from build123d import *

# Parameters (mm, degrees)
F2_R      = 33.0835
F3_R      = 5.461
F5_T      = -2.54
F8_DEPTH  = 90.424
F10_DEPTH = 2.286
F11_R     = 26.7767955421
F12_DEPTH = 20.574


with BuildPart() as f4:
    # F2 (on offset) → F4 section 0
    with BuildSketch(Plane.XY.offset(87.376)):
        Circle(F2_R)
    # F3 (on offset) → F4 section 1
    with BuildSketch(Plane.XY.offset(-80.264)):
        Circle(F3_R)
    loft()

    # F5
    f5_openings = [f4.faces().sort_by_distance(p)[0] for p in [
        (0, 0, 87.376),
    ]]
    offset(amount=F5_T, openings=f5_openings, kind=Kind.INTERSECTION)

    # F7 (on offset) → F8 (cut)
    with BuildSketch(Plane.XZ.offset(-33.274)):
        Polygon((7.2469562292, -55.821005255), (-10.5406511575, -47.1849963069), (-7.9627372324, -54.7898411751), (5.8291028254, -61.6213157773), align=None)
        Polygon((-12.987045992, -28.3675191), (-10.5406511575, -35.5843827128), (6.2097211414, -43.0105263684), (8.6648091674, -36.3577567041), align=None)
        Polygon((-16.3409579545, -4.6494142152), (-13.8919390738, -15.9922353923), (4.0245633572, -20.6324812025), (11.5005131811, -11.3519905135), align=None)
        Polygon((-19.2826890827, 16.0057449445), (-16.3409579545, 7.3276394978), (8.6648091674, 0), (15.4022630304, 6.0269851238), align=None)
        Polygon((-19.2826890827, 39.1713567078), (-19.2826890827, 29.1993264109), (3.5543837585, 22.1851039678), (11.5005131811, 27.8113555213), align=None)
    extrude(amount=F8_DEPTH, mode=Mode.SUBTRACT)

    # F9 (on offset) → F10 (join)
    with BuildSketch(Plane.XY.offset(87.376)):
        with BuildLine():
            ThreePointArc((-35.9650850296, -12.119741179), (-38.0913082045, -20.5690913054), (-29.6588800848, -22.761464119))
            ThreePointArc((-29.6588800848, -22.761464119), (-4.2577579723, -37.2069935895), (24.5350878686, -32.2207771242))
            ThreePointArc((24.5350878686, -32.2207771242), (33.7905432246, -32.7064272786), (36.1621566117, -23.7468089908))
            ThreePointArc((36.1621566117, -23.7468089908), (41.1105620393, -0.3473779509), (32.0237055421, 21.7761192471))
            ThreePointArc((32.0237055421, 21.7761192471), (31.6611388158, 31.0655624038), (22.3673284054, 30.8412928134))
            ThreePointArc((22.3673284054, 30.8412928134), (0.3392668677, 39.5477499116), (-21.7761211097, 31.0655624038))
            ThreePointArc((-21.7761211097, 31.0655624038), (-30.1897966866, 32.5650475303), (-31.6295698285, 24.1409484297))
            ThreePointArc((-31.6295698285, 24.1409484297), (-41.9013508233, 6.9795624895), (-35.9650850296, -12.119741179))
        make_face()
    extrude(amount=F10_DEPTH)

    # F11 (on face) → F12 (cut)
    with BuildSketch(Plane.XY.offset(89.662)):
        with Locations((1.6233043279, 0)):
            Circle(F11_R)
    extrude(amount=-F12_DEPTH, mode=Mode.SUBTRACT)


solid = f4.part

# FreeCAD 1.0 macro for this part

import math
import FreeCAD as App
import Part
import Sketcher
from FreeCAD import Vector
Q = App.Units.Quantity


def faces_at(feature, points):
    """Names of the faces that lie closest to the given points."""
    faces = feature.Shape.Faces
    near = lambda p: min(range(len(faces)), key=lambda i: faces[i].distToShape(Part.Vertex(*p))[0])
    return sorted({f"Face{near(p) + 1}" for p in points})

doc = App.newDocument("Part")
body = doc.addObject("PartDesign::Body", "Body")

# Sketch on XY plane
sketch1 = body.newObject("Sketcher::SketchObject", "Sketch")
sketch1.AttachmentSupport = (doc.getObject("XY_Plane"), [""])
sketch1.MapMode = "FlatFace"
sketch1.AttachmentOffset = App.Placement(Vector(0, 0, 3.44 * 25.4), App.Rotation())
sketch1.addGeometry(Part.Circle(Vector(0, 0, 0), Vector(0, 0, 1), 33), False)
sketch1.addConstraint([
    Sketcher.Constraint("Coincident", 0, 3, -1, 1),
    Sketcher.Constraint("Diameter", 0, Q("2.605 in")),
])

# Sketch on XY plane
sketch2 = body.newObject("Sketcher::SketchObject", "Sketch001")
sketch2.AttachmentSupport = (doc.getObject("XY_Plane"), [""])
sketch2.MapMode = "FlatFace"
sketch2.AttachmentOffset = App.Placement(Vector(0, 0, -3.16 * 25.4), App.Rotation())
sketch2.addGeometry(Part.Circle(Vector(0, 0, 0), Vector(0, 0, 1), 5), False)
sketch2.addConstraint([
    Sketcher.Constraint("Coincident", 0, 3, -1, 1),
    Sketcher.Constraint("Diameter", 0, Q("0.43 in")),
])

additiveloft = body.newObject("PartDesign::AdditiveLoft", "AdditiveLoft")
additiveloft.Profile = sketch1
additiveloft.Sections = [sketch2]
doc.recompute()

thickness = body.newObject("PartDesign::Thickness", "Thickness")
thickness.Base = (additiveloft, faces_at(additiveloft, [(0, 0, 87.376)]))
thickness.Value = Q("0.1 in")
thickness.Reversed = True
thickness.Join = "Intersection"

# Sketch on XZ plane
sketch3 = body.newObject("Sketcher::SketchObject", "Sketch002")
sketch3.AttachmentSupport = (doc.getObject("XZ_Plane"), [""])
sketch3.MapMode = "FlatFace"
sketch3.AttachmentOffset = App.Placement(Vector(0, 0, -1.31 * 25.4), App.Rotation())
sketch3.addGeometry([
    Part.LineSegment(Vector(7, -56, 0), Vector(-11, -47, 0)),  # 0
    Part.LineSegment(Vector(-11, -47, 0), Vector(-8, -55, 0)),  # 1
    Part.LineSegment(Vector(-8, -55, 0), Vector(6, -62, 0)),  # 2
    Part.LineSegment(Vector(6, -62, 0), Vector(7, -56, 0)),  # 3
    Part.LineSegment(Vector(-13, -28, 0), Vector(-11, -36, 0)),  # 4
    Part.LineSegment(Vector(-11, -36, 0), Vector(6, -43, 0)),  # 5
    Part.LineSegment(Vector(6, -43, 0), Vector(9, -36, 0)),  # 6
    Part.LineSegment(Vector(9, -36, 0), Vector(-13, -28, 0)),  # 7
    Part.LineSegment(Vector(-16, -5, 0), Vector(-14, -16, 0)),  # 8
    Part.LineSegment(Vector(-14, -16, 0), Vector(4, -21, 0)),  # 9
    Part.LineSegment(Vector(4, -21, 0), Vector(12, -11, 0)),  # 10
    Part.LineSegment(Vector(12, -11, 0), Vector(-16, -5, 0)),  # 11
    Part.LineSegment(Vector(-19, 16, 0), Vector(-16, 7, 0)),  # 12
    Part.LineSegment(Vector(-16, 7, 0), Vector(9, 0, 0)),  # 13
    Part.LineSegment(Vector(9, 0, 0), Vector(15, 6, 0)),  # 14
    Part.LineSegment(Vector(15, 6, 0), Vector(-19, 16, 0)),  # 15
    Part.LineSegment(Vector(-19, 39, 0), Vector(-19, 29, 0)),  # 16
    Part.LineSegment(Vector(-19, 29, 0), Vector(4, 22, 0)),  # 17
    Part.LineSegment(Vector(4, 22, 0), Vector(12, 28, 0)),  # 18
    Part.LineSegment(Vector(12, 28, 0), Vector(-19, 39, 0)),  # 19
], False)
sketch3.addConstraint([
    Sketcher.Constraint("Coincident", 0, 2, 1, 1),
    Sketcher.Constraint("Coincident", 1, 2, 2, 1),
    Sketcher.Constraint("Coincident", 2, 2, 3, 1),
    Sketcher.Constraint("Coincident", 3, 2, 0, 1),
    Sketcher.Constraint("Coincident", 4, 2, 5, 1),
    Sketcher.Constraint("Coincident", 5, 2, 6, 1),
    Sketcher.Constraint("Coincident", 6, 2, 7, 1),
    Sketcher.Constraint("Coincident", 7, 2, 4, 1),
    Sketcher.Constraint("Coincident", 8, 2, 9, 1),
    Sketcher.Constraint("Coincident", 9, 2, 10, 1),
    Sketcher.Constraint("Coincident", 10, 2, 11, 1),
    Sketcher.Constraint("Coincident", 11, 2, 8, 1),
    Sketcher.Constraint("Coincident", 12, 2, 13, 1),
    Sketcher.Constraint("Coincident", 13, 2, 14, 1),
    Sketcher.Constraint("Coincident", 14, 2, 15, 1),
    Sketcher.Constraint("Coincident", 15, 2, 12, 1),
    Sketcher.Constraint("Coincident", 16, 2, 17, 1),
    Sketcher.Constraint("Coincident", 17, 2, 18, 1),
    Sketcher.Constraint("Coincident", 18, 2, 19, 1),
    Sketcher.Constraint("Coincident", 19, 2, 16, 1),
    Sketcher.Constraint("Vertical", 16),
    Sketcher.Constraint("PointOnObject", 13, 2, -1),
    Sketcher.Constraint("Parallel", 1, 4),
    Sketcher.Constraint("Perpendicular", 6, 7),
    Sketcher.Constraint("Parallel", 4, 12),
    Sketcher.Constraint("Parallel", 7, 19),
    Sketcher.Constraint("Vertical", 0, 2, 4, 2),
    Sketcher.Constraint("Vertical", 11, 2, 12, 2),
    Sketcher.Constraint("Vertical", 6, 2, 13, 2),
    Sketcher.Constraint("Vertical", 15, 2, 16, 2),
    Sketcher.Constraint("Vertical", 10, 2, 18, 2),
    Sketcher.Constraint("Distance", 1, 8.029901),
    Sketcher.Constraint("Distance", 11, 28.6369),
    Sketcher.Constraint("DistanceY", 16, 2, 16, 1, 9.97203),
    Sketcher.Constraint("DistanceY", 4, 2, 9, 2, 14.951902),
    Sketcher.Constraint("DistanceX", 9, 2, 14, 2, 11.3777),
    Sketcher.Constraint("DistanceY", 11, 2, 14, 2, 10.676399),
    Sketcher.Constraint("DistanceX", 15, 2, 13, 2, 27.947498),
    Sketcher.Constraint("DistanceY", 18, 2, 19, 2, 11.360001),
    Sketcher.Constraint("Distance", 3, 5.97109),
    Sketcher.Constraint("Distance", 6, 7.091319),
    Sketcher.Constraint("Distance", 7, 23.079141),
    Sketcher.Constraint("Distance", 12, 9.163149),
    Sketcher.Constraint("Distance", 14, 9.039792),
    Sketcher.Constraint("Distance", 15, 36.091849),
    Sketcher.Constraint("Distance", 17, 23.889981),
    Sketcher.Constraint("DistanceX", 0, 2, -1, 1, 10.540651),
    Sketcher.Constraint("DistanceY", 1, 2, -1, 1, 54.789841),
    Sketcher.Constraint("DistanceX", -1, 1, 5, 2, 6.209721),
    Sketcher.Constraint("DistanceX", -1, 1, 6, 2, 8.664809),
    Sketcher.Constraint("DistanceY", 7, 2, -1, 1, 28.367519),
    Sketcher.Constraint("DistanceX", 8, 2, -1, 1, 13.891939),
    Sketcher.Constraint("DistanceY", 9, 2, -1, 1, 20.632481),
    Sketcher.Constraint("DistanceY", 10, 2, -1, 1, 11.351991),
    Sketcher.Constraint("DistanceX", 1, 2, 2, 2, 13.79184),
    Sketcher.Constraint("DistanceY", 2, 2, 0, 2, 14.436319),
    Sketcher.Constraint("DistanceY", 2, 2, 3, 2, 5.800311),
    Sketcher.Constraint("DistanceY", 6, 2, 8, 2, 20.365521),
    Sketcher.Constraint("DistanceY", 15, 2, 16, 2, 13.193581),
    Sketcher.Constraint("DistanceX", 17, 2, 14, 2, 11.847879),
])
pocket1 = body.newObject("PartDesign::Pocket", "Pocket")
pocket1.Profile = sketch3
pocket1.Length = Q("3.56 in")
pocket1.Reversed = True

# Sketch on XY plane
sketch4 = body.newObject("Sketcher::SketchObject", "Sketch003")
sketch4.AttachmentSupport = (doc.getObject("XY_Plane"), [""])
sketch4.MapMode = "FlatFace"
sketch4.AttachmentOffset = App.Placement(Vector(0, 0, 3.44 * 25.4), App.Rotation())
sketch4.addGeometry([
    Part.ArcOfCircle(Part.Circle(Vector(-33, -17, 0), Vector(0, 0, 1), 6), math.radians(121), math.radians(300)),  # 0
    Part.ArcOfCircle(Part.Circle(Vector(3, 5, 0), Vector(0, 0, 1), 43), math.radians(-139), math.radians(-60)),  # 1
    Part.ArcOfCircle(Part.Circle(Vector(29, -27, 0), Vector(0, 0, 1), 7), math.radians(-132), math.radians(24)),  # 2
    Part.ArcOfCircle(Part.Circle(Vector(1, -4, 0), Vector(0, 0, 1), 41), math.radians(-29), math.radians(39)),  # 3
    Part.ArcOfCircle(Part.Circle(Vector(27, 26, 0), Vector(0, 0, 1), 7), math.radians(-42), math.radians(136)),  # 4
    Part.ArcOfCircle(Part.Circle(Vector(0, 7, 0), Vector(0, 0, 1), 33), math.radians(47), math.radians(132)),  # 5
    Part.ArcOfCircle(Part.Circle(Vector(-27, 28, 0), Vector(0, 0, 1), 6), math.radians(35), math.radians(216)),  # 6
    Part.ArcOfCircle(Part.Circle(Vector(-18, 4, 0), Vector(0, 0, 1), 25), math.radians(125), math.radians(221)),  # 7
], False)
sketch4.addConstraint([
    Sketcher.Constraint("Coincident", 0, 2, 1, 1),
    Sketcher.Constraint("Coincident", 1, 2, 2, 1),
    Sketcher.Constraint("Coincident", 2, 2, 3, 1),
    Sketcher.Constraint("Coincident", 3, 2, 4, 1),
    Sketcher.Constraint("Coincident", 4, 2, 5, 1),
    Sketcher.Constraint("Coincident", 5, 2, 6, 1),
    Sketcher.Constraint("Coincident", 6, 2, 7, 1),
    Sketcher.Constraint("Coincident", 7, 2, 0, 1),
    Sketcher.Constraint("Radius", 2, 7.3496),
    Sketcher.Constraint("Radius", 4, 6.623101),
    Sketcher.Constraint("Radius", 0, 6.185141),
    Sketcher.Constraint("Radius", 3, 40.588549),
    Sketcher.Constraint("Radius", 5, 32.63961),
    Sketcher.Constraint("Radius", 1, 43.288587),
    Sketcher.Constraint("Radius", 6, 6.021794),
    Sketcher.Constraint("Radius", 7, 24.505952),
    Sketcher.Constraint("DistanceX", -1, 1, 3, 3, 0.688702),
    Sketcher.Constraint("DistanceY", -1, 1, 6, 3, 27.638199),
    Sketcher.Constraint("DistanceY", 5, 3, 5, 2, 24.157001),
    Sketcher.Constraint("DistanceX", 7, 2, 0, 3, 3.194802),
    Sketcher.Constraint("DistanceY", -1, 1, 1, 3, 5.43687),
    Sketcher.Constraint("DistanceX", -1, 1, 2, 3, 29.461732),
    Sketcher.Constraint("DistanceX", -1, 1, 4, 3, 27.12805),
    Sketcher.Constraint("DistanceY", -1, 1, 4, 3, 26.236839),
    Sketcher.Constraint("DistanceY", -1, 1, 5, 3, 6.908562),
    Sketcher.Constraint("DistanceX", 7, 3, -1, 1, 17.568709),
    Sketcher.Constraint("DistanceX", 0, 2, -1, 1, 29.65888),
    Sketcher.Constraint("DistanceY", 2, 2, -1, 1, 23.746809),
    Sketcher.Constraint("DistanceY", -1, 1, 3, 2, 21.776119),
    Sketcher.Constraint("DistanceX", -1, 1, 4, 2, 22.367328),
    Sketcher.Constraint("DistanceX", 6, 2, -1, 1, 31.62957),
    Sketcher.Constraint("DistanceY", 7, 2, -1, 1, 12.119741),
])
pad1 = body.newObject("PartDesign::Pad", "Pad")
pad1.Profile = sketch4
pad1.Length = Q("0.09 in")

# Sketch on XY plane
sketch5 = body.newObject("Sketcher::SketchObject", "Sketch004")
sketch5.AttachmentSupport = (doc.getObject("XY_Plane"), [""])
sketch5.MapMode = "FlatFace"
sketch5.AttachmentOffset = App.Placement(Vector(0, 0, 3.53 * 25.4), App.Rotation())
sketch5.addGeometry(Part.Circle(Vector(2, 0, 0), Vector(0, 0, 1), 27), False)
sketch5.addConstraint([
    Sketcher.Constraint("PointOnObject", 0, 3, -1),
    Sketcher.Constraint("Diameter", 0, 53.553591),
    Sketcher.Constraint("DistanceX", -1, 1, 0, 3, 1.623304),
])
pocket2 = body.newObject("PartDesign::Pocket", "Pocket001")
pocket2.Profile = sketch5
pocket2.Length = Q("0.81 in")

doc.recompute()
